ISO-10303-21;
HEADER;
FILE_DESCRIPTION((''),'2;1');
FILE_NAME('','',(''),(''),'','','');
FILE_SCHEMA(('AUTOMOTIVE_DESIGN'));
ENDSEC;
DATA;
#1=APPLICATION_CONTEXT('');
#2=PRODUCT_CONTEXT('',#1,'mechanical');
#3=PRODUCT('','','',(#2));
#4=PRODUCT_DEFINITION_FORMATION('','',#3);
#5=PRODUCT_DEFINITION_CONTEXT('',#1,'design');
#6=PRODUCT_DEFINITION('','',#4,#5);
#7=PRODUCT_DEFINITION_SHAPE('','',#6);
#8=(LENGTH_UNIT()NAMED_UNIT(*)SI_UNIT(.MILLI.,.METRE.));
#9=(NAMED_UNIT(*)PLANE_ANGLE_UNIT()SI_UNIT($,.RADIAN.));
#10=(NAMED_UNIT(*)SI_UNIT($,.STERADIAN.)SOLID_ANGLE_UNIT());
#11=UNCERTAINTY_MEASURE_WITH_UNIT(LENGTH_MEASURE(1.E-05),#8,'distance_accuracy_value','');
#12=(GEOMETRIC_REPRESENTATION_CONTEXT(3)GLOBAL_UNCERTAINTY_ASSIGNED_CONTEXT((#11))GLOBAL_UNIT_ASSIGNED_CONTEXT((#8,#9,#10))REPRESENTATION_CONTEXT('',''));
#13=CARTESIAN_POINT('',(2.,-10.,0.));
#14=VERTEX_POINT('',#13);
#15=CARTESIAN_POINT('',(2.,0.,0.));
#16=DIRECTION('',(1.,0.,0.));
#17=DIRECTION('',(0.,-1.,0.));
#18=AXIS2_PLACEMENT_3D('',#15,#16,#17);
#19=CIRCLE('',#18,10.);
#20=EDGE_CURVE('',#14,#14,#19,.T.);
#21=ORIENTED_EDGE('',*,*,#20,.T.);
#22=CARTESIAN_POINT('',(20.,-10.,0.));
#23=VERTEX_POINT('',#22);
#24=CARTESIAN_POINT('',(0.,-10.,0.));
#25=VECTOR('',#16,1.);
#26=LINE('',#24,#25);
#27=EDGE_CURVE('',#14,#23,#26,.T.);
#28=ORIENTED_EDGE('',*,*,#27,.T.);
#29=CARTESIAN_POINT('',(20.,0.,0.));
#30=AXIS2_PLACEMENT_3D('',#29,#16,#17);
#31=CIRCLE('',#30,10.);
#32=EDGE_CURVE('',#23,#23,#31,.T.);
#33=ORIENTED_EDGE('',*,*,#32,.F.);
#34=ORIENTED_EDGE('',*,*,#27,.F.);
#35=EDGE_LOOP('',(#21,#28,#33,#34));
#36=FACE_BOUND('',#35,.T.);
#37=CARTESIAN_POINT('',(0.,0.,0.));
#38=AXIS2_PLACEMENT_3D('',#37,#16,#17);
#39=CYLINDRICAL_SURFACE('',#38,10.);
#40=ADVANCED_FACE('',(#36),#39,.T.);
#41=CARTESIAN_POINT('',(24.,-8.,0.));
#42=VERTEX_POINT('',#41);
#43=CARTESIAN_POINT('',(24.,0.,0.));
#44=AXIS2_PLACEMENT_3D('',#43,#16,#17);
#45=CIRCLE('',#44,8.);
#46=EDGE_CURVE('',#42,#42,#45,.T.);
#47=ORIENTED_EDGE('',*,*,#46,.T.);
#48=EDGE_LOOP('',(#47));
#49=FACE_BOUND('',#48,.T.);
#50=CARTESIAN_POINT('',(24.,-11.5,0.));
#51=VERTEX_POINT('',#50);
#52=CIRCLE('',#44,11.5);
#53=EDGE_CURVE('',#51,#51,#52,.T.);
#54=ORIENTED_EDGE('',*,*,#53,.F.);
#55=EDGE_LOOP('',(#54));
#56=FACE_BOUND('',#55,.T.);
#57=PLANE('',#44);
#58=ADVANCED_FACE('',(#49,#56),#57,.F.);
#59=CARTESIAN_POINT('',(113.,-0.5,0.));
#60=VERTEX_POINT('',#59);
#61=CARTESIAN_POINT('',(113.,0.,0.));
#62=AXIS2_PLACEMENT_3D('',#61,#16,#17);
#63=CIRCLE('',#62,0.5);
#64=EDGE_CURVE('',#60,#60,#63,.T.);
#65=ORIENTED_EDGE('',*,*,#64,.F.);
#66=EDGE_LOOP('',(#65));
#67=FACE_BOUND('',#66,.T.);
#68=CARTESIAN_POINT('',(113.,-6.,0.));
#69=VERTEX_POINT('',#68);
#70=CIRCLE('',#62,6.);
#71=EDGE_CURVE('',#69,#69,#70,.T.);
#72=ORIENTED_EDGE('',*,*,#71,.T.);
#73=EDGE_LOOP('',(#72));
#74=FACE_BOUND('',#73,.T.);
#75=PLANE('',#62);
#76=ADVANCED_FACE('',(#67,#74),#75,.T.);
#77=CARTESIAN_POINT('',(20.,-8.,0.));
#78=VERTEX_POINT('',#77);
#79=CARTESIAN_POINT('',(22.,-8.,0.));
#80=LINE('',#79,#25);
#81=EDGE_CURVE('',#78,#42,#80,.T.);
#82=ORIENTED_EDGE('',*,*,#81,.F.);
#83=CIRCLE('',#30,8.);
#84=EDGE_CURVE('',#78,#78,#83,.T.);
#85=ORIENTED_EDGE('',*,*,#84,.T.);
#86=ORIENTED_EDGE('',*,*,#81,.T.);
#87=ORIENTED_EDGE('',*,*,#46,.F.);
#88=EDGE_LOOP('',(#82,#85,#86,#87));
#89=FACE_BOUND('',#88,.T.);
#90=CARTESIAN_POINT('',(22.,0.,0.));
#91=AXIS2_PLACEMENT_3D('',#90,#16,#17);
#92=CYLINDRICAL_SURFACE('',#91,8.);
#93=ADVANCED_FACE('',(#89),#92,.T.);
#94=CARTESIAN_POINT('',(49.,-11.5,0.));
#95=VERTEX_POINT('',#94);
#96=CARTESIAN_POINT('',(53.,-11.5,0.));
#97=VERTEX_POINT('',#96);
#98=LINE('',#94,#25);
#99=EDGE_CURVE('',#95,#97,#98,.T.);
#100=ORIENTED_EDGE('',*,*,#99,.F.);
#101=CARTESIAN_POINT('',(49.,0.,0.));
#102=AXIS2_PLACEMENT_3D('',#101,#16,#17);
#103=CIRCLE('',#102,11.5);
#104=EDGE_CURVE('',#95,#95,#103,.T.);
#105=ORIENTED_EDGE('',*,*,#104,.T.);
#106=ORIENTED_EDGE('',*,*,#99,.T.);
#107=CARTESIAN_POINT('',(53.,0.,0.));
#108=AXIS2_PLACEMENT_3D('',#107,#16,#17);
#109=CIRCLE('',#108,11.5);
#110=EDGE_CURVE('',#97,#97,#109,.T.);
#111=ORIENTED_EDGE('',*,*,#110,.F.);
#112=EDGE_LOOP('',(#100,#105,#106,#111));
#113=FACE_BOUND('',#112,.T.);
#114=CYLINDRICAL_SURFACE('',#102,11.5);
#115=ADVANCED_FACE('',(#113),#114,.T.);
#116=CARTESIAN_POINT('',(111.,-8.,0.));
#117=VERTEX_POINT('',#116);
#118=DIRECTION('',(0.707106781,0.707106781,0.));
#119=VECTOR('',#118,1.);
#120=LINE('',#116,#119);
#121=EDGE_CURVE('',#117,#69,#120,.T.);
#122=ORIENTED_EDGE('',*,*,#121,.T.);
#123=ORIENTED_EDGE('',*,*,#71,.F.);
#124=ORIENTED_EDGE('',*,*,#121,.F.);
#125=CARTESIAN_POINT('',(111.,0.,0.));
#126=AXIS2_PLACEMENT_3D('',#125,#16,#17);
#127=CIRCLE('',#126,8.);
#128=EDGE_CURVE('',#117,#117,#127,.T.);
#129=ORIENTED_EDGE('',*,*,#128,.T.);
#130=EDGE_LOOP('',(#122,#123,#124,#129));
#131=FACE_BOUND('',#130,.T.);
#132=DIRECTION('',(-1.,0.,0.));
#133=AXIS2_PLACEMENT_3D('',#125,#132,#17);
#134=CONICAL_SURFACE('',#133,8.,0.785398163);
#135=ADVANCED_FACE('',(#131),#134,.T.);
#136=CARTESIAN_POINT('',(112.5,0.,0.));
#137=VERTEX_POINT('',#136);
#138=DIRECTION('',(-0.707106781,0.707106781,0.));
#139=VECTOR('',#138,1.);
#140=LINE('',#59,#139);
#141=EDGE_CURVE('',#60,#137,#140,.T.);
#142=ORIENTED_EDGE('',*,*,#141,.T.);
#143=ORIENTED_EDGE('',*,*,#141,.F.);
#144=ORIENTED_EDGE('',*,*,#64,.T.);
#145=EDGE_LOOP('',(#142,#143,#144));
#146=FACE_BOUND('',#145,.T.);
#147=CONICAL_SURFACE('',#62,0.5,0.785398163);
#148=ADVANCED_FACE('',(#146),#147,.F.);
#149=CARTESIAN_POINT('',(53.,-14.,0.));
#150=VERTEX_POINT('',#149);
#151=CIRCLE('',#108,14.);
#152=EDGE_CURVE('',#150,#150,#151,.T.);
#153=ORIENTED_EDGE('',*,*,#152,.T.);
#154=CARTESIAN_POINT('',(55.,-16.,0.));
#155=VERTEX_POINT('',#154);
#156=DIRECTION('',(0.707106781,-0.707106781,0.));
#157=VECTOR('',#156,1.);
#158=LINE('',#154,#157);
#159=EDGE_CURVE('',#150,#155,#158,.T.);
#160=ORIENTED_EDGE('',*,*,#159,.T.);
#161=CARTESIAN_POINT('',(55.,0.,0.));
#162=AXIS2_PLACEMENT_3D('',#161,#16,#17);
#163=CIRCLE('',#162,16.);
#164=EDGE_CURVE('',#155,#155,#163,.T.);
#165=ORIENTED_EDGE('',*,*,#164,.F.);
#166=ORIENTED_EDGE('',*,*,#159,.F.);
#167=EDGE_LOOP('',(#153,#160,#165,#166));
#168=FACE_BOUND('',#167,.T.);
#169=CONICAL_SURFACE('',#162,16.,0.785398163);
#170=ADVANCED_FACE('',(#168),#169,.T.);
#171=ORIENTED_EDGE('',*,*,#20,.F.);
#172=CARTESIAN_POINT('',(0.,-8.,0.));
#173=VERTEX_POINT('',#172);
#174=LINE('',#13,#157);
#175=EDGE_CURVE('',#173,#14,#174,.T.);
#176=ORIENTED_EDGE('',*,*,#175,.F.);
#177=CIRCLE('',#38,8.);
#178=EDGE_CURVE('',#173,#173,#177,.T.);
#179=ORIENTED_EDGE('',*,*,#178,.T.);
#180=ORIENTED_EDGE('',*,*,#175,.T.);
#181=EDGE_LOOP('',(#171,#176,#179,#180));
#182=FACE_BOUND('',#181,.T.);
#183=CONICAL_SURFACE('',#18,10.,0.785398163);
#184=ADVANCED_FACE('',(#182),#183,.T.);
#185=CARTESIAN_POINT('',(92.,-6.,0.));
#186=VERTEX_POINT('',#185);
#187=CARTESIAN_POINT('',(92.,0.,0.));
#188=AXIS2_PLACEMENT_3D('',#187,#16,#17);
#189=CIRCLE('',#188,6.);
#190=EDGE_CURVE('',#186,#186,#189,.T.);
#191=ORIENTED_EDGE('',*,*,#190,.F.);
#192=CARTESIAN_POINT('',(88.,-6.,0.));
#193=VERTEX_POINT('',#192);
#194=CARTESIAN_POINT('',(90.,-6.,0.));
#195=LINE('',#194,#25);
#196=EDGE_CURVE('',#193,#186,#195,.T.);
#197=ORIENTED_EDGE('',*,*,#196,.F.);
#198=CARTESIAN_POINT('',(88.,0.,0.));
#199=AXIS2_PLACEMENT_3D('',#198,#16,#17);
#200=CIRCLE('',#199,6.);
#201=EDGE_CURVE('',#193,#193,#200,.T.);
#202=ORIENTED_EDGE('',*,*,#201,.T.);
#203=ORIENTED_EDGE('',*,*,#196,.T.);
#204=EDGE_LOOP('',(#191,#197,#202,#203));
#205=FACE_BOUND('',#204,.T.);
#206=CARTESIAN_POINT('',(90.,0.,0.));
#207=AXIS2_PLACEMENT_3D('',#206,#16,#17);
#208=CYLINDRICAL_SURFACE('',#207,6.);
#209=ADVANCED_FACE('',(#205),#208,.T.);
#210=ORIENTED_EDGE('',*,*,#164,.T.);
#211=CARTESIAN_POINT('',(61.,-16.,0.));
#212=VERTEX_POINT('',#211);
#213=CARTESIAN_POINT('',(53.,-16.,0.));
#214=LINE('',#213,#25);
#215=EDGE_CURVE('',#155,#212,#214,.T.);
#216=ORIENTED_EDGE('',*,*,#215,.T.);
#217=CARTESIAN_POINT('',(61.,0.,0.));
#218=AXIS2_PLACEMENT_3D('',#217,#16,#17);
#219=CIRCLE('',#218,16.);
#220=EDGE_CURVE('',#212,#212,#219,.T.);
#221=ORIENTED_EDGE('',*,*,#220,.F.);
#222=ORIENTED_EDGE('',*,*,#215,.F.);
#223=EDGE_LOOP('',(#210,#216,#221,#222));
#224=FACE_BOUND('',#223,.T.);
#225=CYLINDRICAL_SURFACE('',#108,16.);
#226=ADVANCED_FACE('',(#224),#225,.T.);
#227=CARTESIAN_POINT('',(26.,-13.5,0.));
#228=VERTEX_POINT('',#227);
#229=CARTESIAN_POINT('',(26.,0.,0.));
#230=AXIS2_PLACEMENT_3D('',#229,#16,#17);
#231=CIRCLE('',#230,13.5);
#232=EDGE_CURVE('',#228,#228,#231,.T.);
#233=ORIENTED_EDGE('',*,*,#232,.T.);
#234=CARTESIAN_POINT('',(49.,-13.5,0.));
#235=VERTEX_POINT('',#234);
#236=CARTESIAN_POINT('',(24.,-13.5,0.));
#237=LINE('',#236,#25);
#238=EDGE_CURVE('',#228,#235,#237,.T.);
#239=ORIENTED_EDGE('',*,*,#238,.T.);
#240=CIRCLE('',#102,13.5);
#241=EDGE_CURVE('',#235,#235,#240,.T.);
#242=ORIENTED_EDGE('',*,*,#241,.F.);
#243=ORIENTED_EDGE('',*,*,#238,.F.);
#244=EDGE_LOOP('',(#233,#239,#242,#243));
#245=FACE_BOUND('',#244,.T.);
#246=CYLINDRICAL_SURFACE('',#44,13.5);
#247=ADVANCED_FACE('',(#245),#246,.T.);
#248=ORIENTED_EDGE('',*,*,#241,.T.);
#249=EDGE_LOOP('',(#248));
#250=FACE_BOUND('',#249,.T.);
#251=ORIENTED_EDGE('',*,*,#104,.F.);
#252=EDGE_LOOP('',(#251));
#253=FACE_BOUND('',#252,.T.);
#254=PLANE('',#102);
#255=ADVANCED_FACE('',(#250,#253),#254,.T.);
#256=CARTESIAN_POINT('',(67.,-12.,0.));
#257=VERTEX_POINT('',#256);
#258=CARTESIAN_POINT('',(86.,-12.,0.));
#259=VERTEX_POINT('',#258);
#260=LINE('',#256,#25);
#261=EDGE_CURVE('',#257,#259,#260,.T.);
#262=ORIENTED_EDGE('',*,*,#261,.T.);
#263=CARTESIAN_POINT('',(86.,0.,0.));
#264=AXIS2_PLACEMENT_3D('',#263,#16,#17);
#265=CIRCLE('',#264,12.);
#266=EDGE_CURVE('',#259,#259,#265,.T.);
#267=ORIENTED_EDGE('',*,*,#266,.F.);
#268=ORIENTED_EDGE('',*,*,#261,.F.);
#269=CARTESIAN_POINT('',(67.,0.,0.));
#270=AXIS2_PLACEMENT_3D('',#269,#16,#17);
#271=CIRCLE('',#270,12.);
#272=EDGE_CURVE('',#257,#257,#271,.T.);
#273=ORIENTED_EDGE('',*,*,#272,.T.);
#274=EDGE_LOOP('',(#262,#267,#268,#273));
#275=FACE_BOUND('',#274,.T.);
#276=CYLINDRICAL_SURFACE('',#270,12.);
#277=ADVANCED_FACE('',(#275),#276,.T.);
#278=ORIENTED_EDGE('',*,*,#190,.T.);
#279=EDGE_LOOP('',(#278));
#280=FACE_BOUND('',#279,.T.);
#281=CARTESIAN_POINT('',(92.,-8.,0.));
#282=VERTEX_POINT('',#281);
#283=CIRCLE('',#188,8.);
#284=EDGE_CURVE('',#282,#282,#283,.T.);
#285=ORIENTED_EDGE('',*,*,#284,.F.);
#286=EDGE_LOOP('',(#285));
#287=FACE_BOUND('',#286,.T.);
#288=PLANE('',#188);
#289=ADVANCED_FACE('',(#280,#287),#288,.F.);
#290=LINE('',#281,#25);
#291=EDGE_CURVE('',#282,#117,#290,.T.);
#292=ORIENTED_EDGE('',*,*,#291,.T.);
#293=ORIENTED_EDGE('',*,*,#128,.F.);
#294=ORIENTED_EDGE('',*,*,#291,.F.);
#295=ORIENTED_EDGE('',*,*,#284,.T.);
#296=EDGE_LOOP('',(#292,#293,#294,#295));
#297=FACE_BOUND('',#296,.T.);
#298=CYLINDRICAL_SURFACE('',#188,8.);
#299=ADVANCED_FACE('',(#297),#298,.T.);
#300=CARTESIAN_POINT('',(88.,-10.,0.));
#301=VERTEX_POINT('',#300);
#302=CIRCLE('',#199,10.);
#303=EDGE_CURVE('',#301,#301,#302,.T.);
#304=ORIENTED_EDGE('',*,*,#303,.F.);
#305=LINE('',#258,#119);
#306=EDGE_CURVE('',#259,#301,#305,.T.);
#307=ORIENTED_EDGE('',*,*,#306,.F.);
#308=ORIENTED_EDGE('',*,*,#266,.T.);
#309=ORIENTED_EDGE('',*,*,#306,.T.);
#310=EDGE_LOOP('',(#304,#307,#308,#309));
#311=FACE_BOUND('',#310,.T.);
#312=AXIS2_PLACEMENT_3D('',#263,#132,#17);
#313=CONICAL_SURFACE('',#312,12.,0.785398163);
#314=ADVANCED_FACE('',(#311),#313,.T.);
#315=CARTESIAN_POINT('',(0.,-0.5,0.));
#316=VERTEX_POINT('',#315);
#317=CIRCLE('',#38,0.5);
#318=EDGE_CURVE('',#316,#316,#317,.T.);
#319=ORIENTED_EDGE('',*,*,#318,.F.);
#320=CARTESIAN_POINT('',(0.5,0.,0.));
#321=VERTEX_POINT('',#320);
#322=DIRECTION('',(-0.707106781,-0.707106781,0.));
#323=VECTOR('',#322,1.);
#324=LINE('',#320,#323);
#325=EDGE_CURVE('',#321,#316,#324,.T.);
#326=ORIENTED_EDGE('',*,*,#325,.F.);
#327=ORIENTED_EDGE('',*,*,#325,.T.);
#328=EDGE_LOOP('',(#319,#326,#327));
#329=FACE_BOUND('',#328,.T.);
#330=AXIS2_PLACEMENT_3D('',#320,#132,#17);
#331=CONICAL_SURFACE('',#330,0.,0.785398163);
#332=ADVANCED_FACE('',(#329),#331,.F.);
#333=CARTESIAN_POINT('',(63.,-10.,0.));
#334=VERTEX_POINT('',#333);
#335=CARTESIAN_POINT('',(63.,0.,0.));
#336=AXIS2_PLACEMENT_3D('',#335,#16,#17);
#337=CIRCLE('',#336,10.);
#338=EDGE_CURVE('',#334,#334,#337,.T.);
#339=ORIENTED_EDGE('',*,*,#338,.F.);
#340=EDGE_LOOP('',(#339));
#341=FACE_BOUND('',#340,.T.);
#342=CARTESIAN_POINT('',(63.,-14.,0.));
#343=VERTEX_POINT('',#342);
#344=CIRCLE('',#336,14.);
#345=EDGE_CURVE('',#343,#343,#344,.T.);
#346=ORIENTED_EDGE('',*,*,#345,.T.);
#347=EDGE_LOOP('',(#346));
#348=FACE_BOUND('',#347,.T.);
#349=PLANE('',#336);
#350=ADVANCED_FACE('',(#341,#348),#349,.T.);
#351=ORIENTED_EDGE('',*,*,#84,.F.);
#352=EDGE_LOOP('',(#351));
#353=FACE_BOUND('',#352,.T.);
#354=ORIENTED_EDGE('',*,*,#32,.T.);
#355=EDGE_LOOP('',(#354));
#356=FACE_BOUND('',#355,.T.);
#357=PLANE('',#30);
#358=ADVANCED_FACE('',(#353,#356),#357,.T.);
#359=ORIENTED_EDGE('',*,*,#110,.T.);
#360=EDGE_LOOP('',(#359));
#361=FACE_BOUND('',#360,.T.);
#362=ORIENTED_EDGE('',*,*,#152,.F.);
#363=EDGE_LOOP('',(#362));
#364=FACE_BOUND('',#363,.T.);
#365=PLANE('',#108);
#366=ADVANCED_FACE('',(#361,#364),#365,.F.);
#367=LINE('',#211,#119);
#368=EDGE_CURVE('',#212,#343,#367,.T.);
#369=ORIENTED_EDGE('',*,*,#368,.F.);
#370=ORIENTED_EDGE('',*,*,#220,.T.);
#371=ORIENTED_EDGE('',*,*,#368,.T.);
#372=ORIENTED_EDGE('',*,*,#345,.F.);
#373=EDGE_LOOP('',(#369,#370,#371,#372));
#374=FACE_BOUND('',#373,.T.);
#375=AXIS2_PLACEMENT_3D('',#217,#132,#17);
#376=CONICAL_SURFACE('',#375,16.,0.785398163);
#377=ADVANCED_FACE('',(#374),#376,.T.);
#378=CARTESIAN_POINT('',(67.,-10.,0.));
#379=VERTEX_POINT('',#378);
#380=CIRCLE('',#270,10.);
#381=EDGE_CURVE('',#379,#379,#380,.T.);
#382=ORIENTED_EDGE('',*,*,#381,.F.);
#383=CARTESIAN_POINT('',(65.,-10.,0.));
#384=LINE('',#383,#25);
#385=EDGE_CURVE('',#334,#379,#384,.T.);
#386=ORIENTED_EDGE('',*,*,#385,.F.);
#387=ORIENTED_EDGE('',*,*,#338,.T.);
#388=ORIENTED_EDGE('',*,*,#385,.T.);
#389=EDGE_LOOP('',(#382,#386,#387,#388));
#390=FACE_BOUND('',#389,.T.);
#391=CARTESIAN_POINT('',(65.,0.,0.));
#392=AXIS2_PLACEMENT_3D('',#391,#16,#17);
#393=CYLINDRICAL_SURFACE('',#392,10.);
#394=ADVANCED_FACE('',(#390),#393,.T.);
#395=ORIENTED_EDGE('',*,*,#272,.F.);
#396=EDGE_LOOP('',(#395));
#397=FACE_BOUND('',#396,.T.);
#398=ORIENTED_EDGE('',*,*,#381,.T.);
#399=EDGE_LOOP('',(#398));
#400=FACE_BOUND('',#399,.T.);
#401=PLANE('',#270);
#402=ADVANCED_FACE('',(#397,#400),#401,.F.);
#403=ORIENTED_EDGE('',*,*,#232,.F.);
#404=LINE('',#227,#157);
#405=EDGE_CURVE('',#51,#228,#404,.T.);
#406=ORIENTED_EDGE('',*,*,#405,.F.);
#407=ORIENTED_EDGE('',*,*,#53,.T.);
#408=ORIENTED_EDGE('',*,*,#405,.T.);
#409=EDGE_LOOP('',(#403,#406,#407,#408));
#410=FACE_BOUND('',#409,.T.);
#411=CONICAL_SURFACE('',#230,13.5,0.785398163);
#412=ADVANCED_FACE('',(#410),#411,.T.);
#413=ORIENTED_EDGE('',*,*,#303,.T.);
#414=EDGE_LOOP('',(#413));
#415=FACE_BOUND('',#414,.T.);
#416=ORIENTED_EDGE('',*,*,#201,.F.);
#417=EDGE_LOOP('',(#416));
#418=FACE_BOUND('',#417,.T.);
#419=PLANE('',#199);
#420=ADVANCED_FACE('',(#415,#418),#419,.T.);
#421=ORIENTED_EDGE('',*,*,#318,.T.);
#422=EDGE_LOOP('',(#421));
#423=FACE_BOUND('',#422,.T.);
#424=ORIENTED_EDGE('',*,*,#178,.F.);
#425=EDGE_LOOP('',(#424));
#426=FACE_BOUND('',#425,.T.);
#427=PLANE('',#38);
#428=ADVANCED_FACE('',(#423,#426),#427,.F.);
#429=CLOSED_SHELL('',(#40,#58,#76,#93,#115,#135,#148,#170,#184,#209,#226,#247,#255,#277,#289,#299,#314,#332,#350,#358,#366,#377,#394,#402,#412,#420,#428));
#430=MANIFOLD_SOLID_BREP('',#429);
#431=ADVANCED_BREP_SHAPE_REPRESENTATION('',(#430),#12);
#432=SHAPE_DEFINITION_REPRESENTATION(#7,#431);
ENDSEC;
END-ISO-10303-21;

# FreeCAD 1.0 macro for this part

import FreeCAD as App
import Part
import Sketcher

V = App.Vector


def edges_at(feature, points):
    """Names of the edges that pass closest to the given points."""
    edges = feature.Shape.Edges
    near = lambda p: min(range(len(edges)), key=lambda i: edges[i].distToShape(Part.Vertex(*p))[0])
    return sorted({f"Edge{near(p) + 1}" for p in points})


def add_polygon(sketch, points):
    """Adds a closed chain of lines whose ends are joined by coincident constraints."""
    first, n = sketch.GeometryCount, len(points)
    for a, b in zip(points, points[1:] + points[:1]):
        sketch.addGeometry(Part.LineSegment(App.Vector(*a, 0), App.Vector(*b, 0)), False)
    for i in range(n):
        sketch.addConstraint(Sketcher.Constraint("Coincident", first + i, 2, first + (i + 1) % n, 1))

doc = App.newDocument("Part")
params = doc.addObject("Spreadsheet::Sheet", "Params")
for row, (alias, value) in enumerate([
    ("sketch1_width", "25 mm"),
    ("sketch1_width2", "4 mm"),
    ("sketch1_width3", "10 mm"),
    ("sketch1_width4", "21 mm"),
    ("sketch1_width5", "112 mm"),
    ("revolution_angle", "360 deg"),
    ("chamfer_size", "2 mm"),
], start=1):
    params.set(f"A{row}", alias)
    params.set(f"B{row}", "=" + value)
    params.setAlias(f"B{row}", alias)

body = doc.addObject("PartDesign::Body", "Body")

# Sketch on XY plane
sketch1 = body.newObject("Sketcher::SketchObject", "Sketch")
sketch1.AttachmentSupport = (doc.getObject("XY_Plane"), [""])
sketch1.MapMode = "FlatFace"
add_polygon(sketch1, [(24, -8), (24, -13.5), (49, -13.5), (49, -11.5), (53, -11.5), (53, -16), (63, -16), (63, -10), (67, -10), (67, -12), (88, -12), (88, -6), (92, -6), (92, -8), (113, -8), (113, -0.5), (112.5, 0), (0.5, 0), (0, -0.5), (0, -10), (20, -10), (20, -8)])  # lines 0-21
sketch1.addConstraint(Sketcher.Constraint("Vertical", 0))
sketch1.addConstraint(Sketcher.Constraint("Horizontal", 1))
sketch1.addConstraint(Sketcher.Constraint("Vertical", 2))
sketch1.addConstraint(Sketcher.Constraint("Horizontal", 3))
sketch1.addConstraint(Sketcher.Constraint("Vertical", 4))
sketch1.addConstraint(Sketcher.Constraint("Horizontal", 5))
sketch1.addConstraint(Sketcher.Constraint("Vertical", 6))
sketch1.addConstraint(Sketcher.Constraint("Horizontal", 7))
sketch1.addConstraint(Sketcher.Constraint("Vertical", 8))
sketch1.addConstraint(Sketcher.Constraint("Horizontal", 9))
sketch1.addConstraint(Sketcher.Constraint("Vertical", 10))
sketch1.addConstraint(Sketcher.Constraint("Horizontal", 11))
sketch1.addConstraint(Sketcher.Constraint("Vertical", 12))
sketch1.addConstraint(Sketcher.Constraint("Horizontal", 13))
sketch1.addConstraint(Sketcher.Constraint("Vertical", 14))
sketch1.addConstraint(Sketcher.Constraint("Horizontal", 16))
sketch1.addConstraint(Sketcher.Constraint("Vertical", 18))
sketch1.addConstraint(Sketcher.Constraint("Horizontal", 19))
sketch1.addConstraint(Sketcher.Constraint("Vertical", 20))
sketch1.addConstraint(Sketcher.Constraint("Horizontal", 21))
sketch1.addConstraint(Sketcher.Constraint("PointOnObject", 15, 2, -1))
sketch1.addConstraint(Sketcher.Constraint("PointOnObject", 17, 2, -2))
sketch1.addConstraint(Sketcher.Constraint("Perpendicular", 15, 17))
sketch1.addConstraint(Sketcher.Constraint("Horizontal", 14, 2, 17, 2))
sketch1.addConstraint(Sketcher.Constraint("Horizontal", 7, 2, 18, 2))
sketch1.addConstraint(Sketcher.Constraint("Horizontal", 13, 2, 20, 2))
sketch1.addConstraint(Sketcher.Constraint("Equal", 3, 7))
sketch1.addConstraint(Sketcher.Constraint("Equal", 7, 11))
sketch1.addConstraint(Sketcher.Constraint("Equal", 9, 13))
sketch1.addConstraint(Sketcher.Constraint("Equal", 11, 21))
sketch1.addConstraint(Sketcher.Constraint("Equal", 2, 8))
sketch1.addConstraint(Sketcher.Constraint("Equal", 6, 10))
sketch1.addConstraint(Sketcher.Constraint("Equal", 8, 12))
sketch1.addConstraint(Sketcher.Constraint("Equal", 12, 20))
sketch1.addConstraint(Sketcher.Constraint("Equal", 15, 17))
sketch1.addConstraint(Sketcher.Constraint("DistanceX", 1, 1, 1, 2, 25.0))
sketch1.addConstraint(Sketcher.Constraint("DistanceX", 3, 1, 3, 2, 4.0))
sketch1.addConstraint(Sketcher.Constraint("DistanceX", 5, 1, 5, 2, 10.0))
sketch1.addConstraint(Sketcher.Constraint("DistanceX", 9, 1, 9, 2, 21.0))
sketch1.addConstraint(Sketcher.Constraint("DistanceX", 16, 2, 16, 1, 112.0))
sketch1.addConstraint(Sketcher.Constraint("DistanceX", 19, 1, 19, 2, 20.0))
sketch1.addConstraint(Sketcher.Constraint("DistanceY", 2, 1, 2, 2, 2.0))
sketch1.addConstraint(Sketcher.Constraint("DistanceY", 0, 2, 0, 1, 5.5))
sketch1.addConstraint(Sketcher.Constraint("DistanceY", 14, 1, 14, 2, 7.5))
sketch1.setExpression("Constraints[57]", "Params.sketch1_width")
sketch1.setExpression("Constraints[58]", "Params.sketch1_width2")
sketch1.setExpression("Constraints[59]", "Params.sketch1_width3")
sketch1.setExpression("Constraints[60]", "Params.sketch1_width4")
sketch1.setExpression("Constraints[61]", "Params.sketch1_width5")
revolution = body.newObject("PartDesign::Revolution", "Revolution")
revolution.Profile = sketch1
revolution.ReferenceAxis = (sketch1, ["H_Axis"])
revolution.setExpression("Angle", "Params.revolution_angle")
doc.recompute()

chamfer = body.newObject("PartDesign::Chamfer", "Chamfer")
chamfer.Base = (revolution, edges_at(revolution, [
    (0, 10, 0),
    (24, 13.5, 0),
    (53, 16, 0),
    (63, 16, 0),
    (88, 12, 0),
    (113, 8, 0),
]))
chamfer.setExpression("Size", "Params.chamfer_size")

doc.recompute()
